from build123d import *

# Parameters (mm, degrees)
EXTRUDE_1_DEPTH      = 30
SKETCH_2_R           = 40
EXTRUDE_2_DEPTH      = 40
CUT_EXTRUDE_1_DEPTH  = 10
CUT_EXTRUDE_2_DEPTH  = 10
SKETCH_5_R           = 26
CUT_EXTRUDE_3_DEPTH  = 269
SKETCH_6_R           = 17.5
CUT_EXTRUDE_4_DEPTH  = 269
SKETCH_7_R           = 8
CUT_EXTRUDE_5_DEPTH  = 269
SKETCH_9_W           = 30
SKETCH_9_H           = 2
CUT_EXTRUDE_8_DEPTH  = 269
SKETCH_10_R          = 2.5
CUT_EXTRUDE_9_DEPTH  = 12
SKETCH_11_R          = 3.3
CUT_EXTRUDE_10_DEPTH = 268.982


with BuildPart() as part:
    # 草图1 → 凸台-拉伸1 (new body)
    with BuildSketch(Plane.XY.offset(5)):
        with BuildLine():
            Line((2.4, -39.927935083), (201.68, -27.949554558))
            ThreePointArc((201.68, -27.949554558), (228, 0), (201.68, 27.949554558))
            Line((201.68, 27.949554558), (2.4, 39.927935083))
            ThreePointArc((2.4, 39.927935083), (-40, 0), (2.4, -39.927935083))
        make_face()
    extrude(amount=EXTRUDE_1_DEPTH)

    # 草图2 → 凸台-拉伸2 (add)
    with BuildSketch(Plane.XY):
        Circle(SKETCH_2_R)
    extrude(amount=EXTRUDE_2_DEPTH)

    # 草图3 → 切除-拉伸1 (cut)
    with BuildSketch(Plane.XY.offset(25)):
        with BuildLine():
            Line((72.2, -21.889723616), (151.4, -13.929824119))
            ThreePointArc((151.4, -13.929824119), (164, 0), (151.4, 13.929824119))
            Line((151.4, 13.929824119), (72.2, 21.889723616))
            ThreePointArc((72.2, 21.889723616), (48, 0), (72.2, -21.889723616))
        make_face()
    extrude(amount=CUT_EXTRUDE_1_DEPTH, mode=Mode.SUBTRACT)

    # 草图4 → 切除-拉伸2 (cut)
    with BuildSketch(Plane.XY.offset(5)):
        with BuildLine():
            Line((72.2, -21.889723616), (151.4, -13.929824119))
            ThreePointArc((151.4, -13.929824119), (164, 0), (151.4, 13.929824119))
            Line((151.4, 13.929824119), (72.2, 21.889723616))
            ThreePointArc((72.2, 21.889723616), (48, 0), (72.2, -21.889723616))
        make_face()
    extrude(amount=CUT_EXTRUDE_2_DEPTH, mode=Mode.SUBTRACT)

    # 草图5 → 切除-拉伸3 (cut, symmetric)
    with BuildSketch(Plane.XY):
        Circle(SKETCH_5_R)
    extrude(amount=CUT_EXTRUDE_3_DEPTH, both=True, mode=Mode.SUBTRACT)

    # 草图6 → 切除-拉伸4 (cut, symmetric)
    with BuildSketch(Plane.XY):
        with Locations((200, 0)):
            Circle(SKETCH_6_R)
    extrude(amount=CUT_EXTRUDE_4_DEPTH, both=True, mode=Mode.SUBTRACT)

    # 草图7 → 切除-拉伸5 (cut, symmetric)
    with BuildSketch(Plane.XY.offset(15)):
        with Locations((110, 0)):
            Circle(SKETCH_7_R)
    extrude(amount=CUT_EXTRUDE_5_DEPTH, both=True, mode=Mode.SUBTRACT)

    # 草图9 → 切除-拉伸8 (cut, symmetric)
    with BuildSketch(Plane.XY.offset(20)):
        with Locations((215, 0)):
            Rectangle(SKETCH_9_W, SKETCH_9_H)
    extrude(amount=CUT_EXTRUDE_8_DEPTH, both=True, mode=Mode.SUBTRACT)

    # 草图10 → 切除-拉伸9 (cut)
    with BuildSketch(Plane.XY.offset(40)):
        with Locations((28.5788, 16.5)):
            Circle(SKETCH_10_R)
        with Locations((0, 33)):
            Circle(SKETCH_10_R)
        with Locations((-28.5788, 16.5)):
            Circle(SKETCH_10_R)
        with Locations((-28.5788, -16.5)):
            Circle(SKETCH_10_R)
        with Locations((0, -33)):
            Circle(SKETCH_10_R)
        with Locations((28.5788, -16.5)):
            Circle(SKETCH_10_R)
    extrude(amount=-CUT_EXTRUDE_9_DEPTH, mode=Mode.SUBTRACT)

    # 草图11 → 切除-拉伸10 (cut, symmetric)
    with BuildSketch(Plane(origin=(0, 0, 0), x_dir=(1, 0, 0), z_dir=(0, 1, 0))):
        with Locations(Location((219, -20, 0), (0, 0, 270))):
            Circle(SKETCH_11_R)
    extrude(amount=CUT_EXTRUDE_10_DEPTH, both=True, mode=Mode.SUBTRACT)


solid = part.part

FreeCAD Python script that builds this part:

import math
import FreeCAD as App
import Part
import Sketcher
from FreeCAD import Vector

doc = App.newDocument("Part")
body = doc.addObject("PartDesign::Body", "Body")

# Sketch on XY plane
sketch1 = body.newObject("Sketcher::SketchObject", "Sketch")
sketch1.AttachmentSupport = (doc.getObject("XY_Plane"), [""])
sketch1.MapMode = "FlatFace"
sketch1.AttachmentOffset = App.Placement(Vector(0, 0, 5), App.Rotation())
sketch1.addGeometry([
    Part.LineSegment(Vector(2, -40, 0), Vector(202, -28, 0)),
    Part.ArcOfCircle(Part.Circle(Vector(200, 0, 0), Vector(0, 0, 1), 28), math.radians(-87), math.radians(87)),
    Part.LineSegment(Vector(202, 28, 0), Vector(2, 40, 0)),
    Part.ArcOfCircle(Part.Circle(Vector(0, 0, 0), Vector(0, 0, 1), 40), math.radians(87), math.radians(273)),
], False)
sketch1.addConstraint([
    Sketcher.Constraint("Tangent", 0, 2, 1, 1),
    Sketcher.Constraint("Tangent", 1, 2, 2, 1),
    Sketcher.Constraint("Tangent", 2, 2, 3, 1),
    Sketcher.Constraint("Tangent", 3, 2, 0, 1),
    Sketcher.Constraint("Coincident", 3, 3, -1, 1),
    Sketcher.Constraint("PointOnObject", 1, 3, -1),
    Sketcher.Constraint("Radius", 1, 28.0),
    Sketcher.Constraint("Radius", 3, 40.0),
    Sketcher.Constraint("DistanceX", -1, 1, 1, 3, 200.0),
])
pad1 = body.newObject("PartDesign::Pad", "Pad")
pad1.Profile = sketch1
pad1.Length = 30

# Sketch on XY plane
sketch2 = body.newObject("Sketcher::SketchObject", "Sketch001")
sketch2.AttachmentSupport = (doc.getObject("XY_Plane"), [""])
sketch2.MapMode = "FlatFace"
sketch2.addGeometry(Part.Circle(Vector(0, 0, 0), Vector(0, 0, 1), 40), False)
sketch2.addConstraint([
    Sketcher.Constraint("Coincident", 0, 3, -1, 1),
    Sketcher.Constraint("Diameter", 0, 80.0),
])
pad2 = body.newObject("PartDesign::Pad", "Pad001")
pad2.Profile = sketch2
pad2.Length = 40

# Sketch on XY plane
sketch3 = body.newObject("Sketcher::SketchObject", "Sketch002")
sketch3.AttachmentSupport = (doc.getObject("XY_Plane"), [""])
sketch3.MapMode = "FlatFace"
sketch3.AttachmentOffset = App.Placement(Vector(0, 0, 25), App.Rotation())
sketch3.addGeometry([
    Part.LineSegment(Vector(72, -22, 0), Vector(151, -14, 0)),
    Part.ArcOfCircle(Part.Circle(Vector(150, 0, 0), Vector(0, 0, 1), 14), math.radians(-84), math.radians(84)),
    Part.LineSegment(Vector(151, 14, 0), Vector(72, 22, 0)),
    Part.ArcOfCircle(Part.Circle(Vector(70, 0, 0), Vector(0, 0, 1), 22), math.radians(84), math.radians(276)),
], False)
sketch3.addConstraint([
    Sketcher.Constraint("Tangent", 0, 2, 1, 1),
    Sketcher.Constraint("Tangent", 1, 2, 2, 1),
    Sketcher.Constraint("Tangent", 2, 2, 3, 1),
    Sketcher.Constraint("Tangent", 3, 2, 0, 1),
    Sketcher.Constraint("Symmetric", 0, 2, 1, 2, -1),
    Sketcher.Constraint("Radius", 1, 14.0),
    Sketcher.Constraint("Radius", 3, 22.0),
    Sketcher.Constraint("DistanceX", -1, 1, 1, 3, 150.0),
    Sketcher.Constraint("DistanceX", -1, 1, 3, 3, 70.0),
])
pocket1 = body.newObject("PartDesign::Pocket", "Pocket")
pocket1.Profile = sketch3
pocket1.Length = 10
pocket1.Reversed = True

# Sketch on XY plane
sketch4 = body.newObject("Sketcher::SketchObject", "Sketch003")
sketch4.AttachmentSupport = (doc.getObject("XY_Plane"), [""])
sketch4.MapMode = "FlatFace"
sketch4.AttachmentOffset = App.Placement(Vector(0, 0, 5), App.Rotation())
sketch4.addGeometry([
    Part.LineSegment(Vector(72, -22, 0), Vector(151, -14, 0)),
    Part.ArcOfCircle(Part.Circle(Vector(150, 0, 0), Vector(0, 0, 1), 14), math.radians(-84), math.radians(84)),
    Part.LineSegment(Vector(151, 14, 0), Vector(72, 22, 0)),
    Part.ArcOfCircle(Part.Circle(Vector(70, 0, 0), Vector(0, 0, 1), 22), math.radians(84), math.radians(276)),
], False)
sketch4.addConstraint([
    Sketcher.Constraint("Tangent", 0, 2, 1, 1),
    Sketcher.Constraint("Tangent", 1, 2, 2, 1),
    Sketcher.Constraint("Tangent", 2, 2, 3, 1),
    Sketcher.Constraint("Tangent", 3, 2, 0, 1),
    Sketcher.Constraint("Symmetric", 0, 2, 1, 2, -1),
    Sketcher.Constraint("Radius", 1, 14.0),
    Sketcher.Constraint("Radius", 3, 22.0),
    Sketcher.Constraint("DistanceX", -1, 1, 1, 3, 150.0),
    Sketcher.Constraint("DistanceX", -1, 1, 3, 3, 70.0),
])
pocket2 = body.newObject("PartDesign::Pocket", "Pocket001")
pocket2.Profile = sketch4
pocket2.Length = 10
pocket2.Reversed = True

# Sketch on XY plane
sketch5 = body.newObject("Sketcher::SketchObject", "Sketch004")
sketch5.AttachmentSupport = (doc.getObject("XY_Plane"), [""])
sketch5.MapMode = "FlatFace"
sketch5.addGeometry(Part.Circle(Vector(0, 0, 0), Vector(0, 0, 1), 26), False)
sketch5.addConstraint([
    Sketcher.Constraint("Coincident", 0, 3, -1, 1),
    Sketcher.Constraint("Diameter", 0, 52.0),
])
pocket3 = body.newObject("PartDesign::Pocket", "Pocket002")
pocket3.Profile = sketch5
pocket3.Length = 538
pocket3.Midplane = True

# Sketch on XY plane
sketch6 = body.newObject("Sketcher::SketchObject", "Sketch005")
sketch6.AttachmentSupport = (doc.getObject("XY_Plane"), [""])
sketch6.MapMode = "FlatFace"
sketch6.addGeometry(Part.Circle(Vector(200, 0, 0), Vector(0, 0, 1), 18), False)
sketch6.addConstraint([
    Sketcher.Constraint("PointOnObject", 0, 3, -1),
    Sketcher.Constraint("Diameter", 0, 35.0),
    Sketcher.Constraint("DistanceX", -1, 1, 0, 3, 200.0),
])
pocket4 = body.newObject("PartDesign::Pocket", "Pocket003")
pocket4.Profile = sketch6
pocket4.Length = 538
pocket4.Midplane = True

# Sketch on XY plane
sketch7 = body.newObject("Sketcher::SketchObject", "Sketch006")
sketch7.AttachmentSupport = (doc.getObject("XY_Plane"), [""])
sketch7.MapMode = "FlatFace"
sketch7.AttachmentOffset = App.Placement(Vector(0, 0, 15), App.Rotation())
sketch7.addGeometry(Part.Circle(Vector(110, 0, 0), Vector(0, 0, 1), 8), False)
sketch7.addConstraint([
    Sketcher.Constraint("PointOnObject", 0, 3, -1),
    Sketcher.Constraint("Diameter", 0, 16.0),
    Sketcher.Constraint("DistanceX", -1, 1, 0, 3, 110.0),
])
pocket5 = body.newObject("PartDesign::Pocket", "Pocket004")
pocket5.Profile = sketch7
pocket5.Length = 538
pocket5.Midplane = True

# Sketch on XY plane
sketch8 = body.newObject("Sketcher::SketchObject", "Sketch007")
sketch8.AttachmentSupport = (doc.getObject("XY_Plane"), [""])
sketch8.MapMode = "FlatFace"
sketch8.AttachmentOffset = App.Placement(Vector(0, 0, 20), App.Rotation())
sketch8.addGeometry([
    Part.LineSegment(Vector(200, 1, 0), Vector(200, -1, 0)),
    Part.LineSegment(Vector(200, -1, 0), Vector(230, -1, 0)),
    Part.LineSegment(Vector(230, -1, 0), Vector(230, 1, 0)),
    Part.LineSegment(Vector(230, 1, 0), Vector(200, 1, 0)),
], False)
sketch8.addConstraint([
    Sketcher.Constraint("Coincident", 0, 2, 1, 1),
    Sketcher.Constraint("Coincident", 1, 2, 2, 1),
    Sketcher.Constraint("Coincident", 2, 2, 3, 1),
    Sketcher.Constraint("Coincident", 3, 2, 0, 1),
    Sketcher.Constraint("Vertical", 0),
    Sketcher.Constraint("Horizontal", 1),
    Sketcher.Constraint("Vertical", 2),
    Sketcher.Constraint("Horizontal", 3),
    Sketcher.Constraint("DistanceX", 1, 1, 1, 2, 30.0),
    Sketcher.Constraint("DistanceY", 0, 2, 0, 1, 2.0),
    Sketcher.Constraint("DistanceX", -1, 1, 0, 2, 200.0),
    Sketcher.Constraint("DistanceY", 0, 2, -1, 1, 1.0),
])
pocket6 = body.newObject("PartDesign::Pocket", "Pocket005")
pocket6.Profile = sketch8
pocket6.Length = 538
pocket6.Midplane = True

# Sketch on XY plane
sketch9 = body.newObject("Sketcher::SketchObject", "Sketch008")
sketch9.AttachmentSupport = (doc.getObject("XY_Plane"), [""])
sketch9.MapMode = "FlatFace"
sketch9.AttachmentOffset = App.Placement(Vector(0, 0, 40), App.Rotation())
sketch9.addGeometry([
    Part.Circle(Vector(28.6, 16.5, 0), Vector(0, 0, 1), 2.5),  # 0
    Part.Circle(Vector(0, 33, 0), Vector(0, 0, 1), 2.5),  # 1
    Part.Circle(Vector(-28.6, 16.5, 0), Vector(0, 0, 1), 2.5),  # 2
    Part.Circle(Vector(-28.6, -16.5, 0), Vector(0, 0, 1), 2.5),  # 3
    Part.Circle(Vector(0, -33, 0), Vector(0, 0, 1), 2.5),  # 4
    Part.Circle(Vector(28.6, -16.5, 0), Vector(0, 0, 1), 2.5),  # 5
], False)
sketch9.addConstraint([
    Sketcher.Constraint("Equal", 0, 1),
    Sketcher.Constraint("Equal", 1, 2),
    Sketcher.Constraint("Equal", 2, 3),
    Sketcher.Constraint("Equal", 3, 4),
    Sketcher.Constraint("Equal", 4, 5),
    Sketcher.Constraint("Symmetric", 0, 3, 3, 3, -1, 1),
    Sketcher.Constraint("Symmetric", 1, 3, 4, 3, -1, 1),
    Sketcher.Constraint("Symmetric", 2, 3, 5, 3, -1, 1),
    Sketcher.Constraint("Symmetric", 0, 3, 2, 3, -2),
    Sketcher.Constraint("PointOnObject", 1, 3, -2),
    Sketcher.Constraint("Diameter", 0, 5.0),
    Sketcher.Constraint("DistanceY", -1, 1, 1, 3, 33.0),
    Sketcher.Constraint("DistanceY", 3, 3, 2, 3, 33.0),
    Sketcher.Constraint("DistanceX", -1, 1, 0, 3, 28.5788),
])
pocket7 = body.newObject("PartDesign::Pocket", "Pocket006")
pocket7.Profile = sketch9
pocket7.Length = 12

# Sketch on XZ plane
sketch10 = body.newObject("Sketcher::SketchObject", "Sketch009")
sketch10.AttachmentSupport = (doc.getObject("XZ_Plane"), [""])
sketch10.MapMode = "FlatFace"
sketch10.addGeometry(Part.Circle(Vector(219, 20, 0), Vector(0, 0, 1), 3.3), False)
sketch10.addConstraint([
    Sketcher.Constraint("Diameter", 0, 6.6),
    Sketcher.Constraint("DistanceX", -1, 1, 0, 3, 219.0),
    Sketcher.Constraint("DistanceY", -1, 1, 0, 3, 20.0),
])
pocket8 = body.newObject("PartDesign::Pocket", "Pocket007")
pocket8.Profile = sketch10
pocket8.Length = 537.964
pocket8.Midplane = True

doc.recompute()
